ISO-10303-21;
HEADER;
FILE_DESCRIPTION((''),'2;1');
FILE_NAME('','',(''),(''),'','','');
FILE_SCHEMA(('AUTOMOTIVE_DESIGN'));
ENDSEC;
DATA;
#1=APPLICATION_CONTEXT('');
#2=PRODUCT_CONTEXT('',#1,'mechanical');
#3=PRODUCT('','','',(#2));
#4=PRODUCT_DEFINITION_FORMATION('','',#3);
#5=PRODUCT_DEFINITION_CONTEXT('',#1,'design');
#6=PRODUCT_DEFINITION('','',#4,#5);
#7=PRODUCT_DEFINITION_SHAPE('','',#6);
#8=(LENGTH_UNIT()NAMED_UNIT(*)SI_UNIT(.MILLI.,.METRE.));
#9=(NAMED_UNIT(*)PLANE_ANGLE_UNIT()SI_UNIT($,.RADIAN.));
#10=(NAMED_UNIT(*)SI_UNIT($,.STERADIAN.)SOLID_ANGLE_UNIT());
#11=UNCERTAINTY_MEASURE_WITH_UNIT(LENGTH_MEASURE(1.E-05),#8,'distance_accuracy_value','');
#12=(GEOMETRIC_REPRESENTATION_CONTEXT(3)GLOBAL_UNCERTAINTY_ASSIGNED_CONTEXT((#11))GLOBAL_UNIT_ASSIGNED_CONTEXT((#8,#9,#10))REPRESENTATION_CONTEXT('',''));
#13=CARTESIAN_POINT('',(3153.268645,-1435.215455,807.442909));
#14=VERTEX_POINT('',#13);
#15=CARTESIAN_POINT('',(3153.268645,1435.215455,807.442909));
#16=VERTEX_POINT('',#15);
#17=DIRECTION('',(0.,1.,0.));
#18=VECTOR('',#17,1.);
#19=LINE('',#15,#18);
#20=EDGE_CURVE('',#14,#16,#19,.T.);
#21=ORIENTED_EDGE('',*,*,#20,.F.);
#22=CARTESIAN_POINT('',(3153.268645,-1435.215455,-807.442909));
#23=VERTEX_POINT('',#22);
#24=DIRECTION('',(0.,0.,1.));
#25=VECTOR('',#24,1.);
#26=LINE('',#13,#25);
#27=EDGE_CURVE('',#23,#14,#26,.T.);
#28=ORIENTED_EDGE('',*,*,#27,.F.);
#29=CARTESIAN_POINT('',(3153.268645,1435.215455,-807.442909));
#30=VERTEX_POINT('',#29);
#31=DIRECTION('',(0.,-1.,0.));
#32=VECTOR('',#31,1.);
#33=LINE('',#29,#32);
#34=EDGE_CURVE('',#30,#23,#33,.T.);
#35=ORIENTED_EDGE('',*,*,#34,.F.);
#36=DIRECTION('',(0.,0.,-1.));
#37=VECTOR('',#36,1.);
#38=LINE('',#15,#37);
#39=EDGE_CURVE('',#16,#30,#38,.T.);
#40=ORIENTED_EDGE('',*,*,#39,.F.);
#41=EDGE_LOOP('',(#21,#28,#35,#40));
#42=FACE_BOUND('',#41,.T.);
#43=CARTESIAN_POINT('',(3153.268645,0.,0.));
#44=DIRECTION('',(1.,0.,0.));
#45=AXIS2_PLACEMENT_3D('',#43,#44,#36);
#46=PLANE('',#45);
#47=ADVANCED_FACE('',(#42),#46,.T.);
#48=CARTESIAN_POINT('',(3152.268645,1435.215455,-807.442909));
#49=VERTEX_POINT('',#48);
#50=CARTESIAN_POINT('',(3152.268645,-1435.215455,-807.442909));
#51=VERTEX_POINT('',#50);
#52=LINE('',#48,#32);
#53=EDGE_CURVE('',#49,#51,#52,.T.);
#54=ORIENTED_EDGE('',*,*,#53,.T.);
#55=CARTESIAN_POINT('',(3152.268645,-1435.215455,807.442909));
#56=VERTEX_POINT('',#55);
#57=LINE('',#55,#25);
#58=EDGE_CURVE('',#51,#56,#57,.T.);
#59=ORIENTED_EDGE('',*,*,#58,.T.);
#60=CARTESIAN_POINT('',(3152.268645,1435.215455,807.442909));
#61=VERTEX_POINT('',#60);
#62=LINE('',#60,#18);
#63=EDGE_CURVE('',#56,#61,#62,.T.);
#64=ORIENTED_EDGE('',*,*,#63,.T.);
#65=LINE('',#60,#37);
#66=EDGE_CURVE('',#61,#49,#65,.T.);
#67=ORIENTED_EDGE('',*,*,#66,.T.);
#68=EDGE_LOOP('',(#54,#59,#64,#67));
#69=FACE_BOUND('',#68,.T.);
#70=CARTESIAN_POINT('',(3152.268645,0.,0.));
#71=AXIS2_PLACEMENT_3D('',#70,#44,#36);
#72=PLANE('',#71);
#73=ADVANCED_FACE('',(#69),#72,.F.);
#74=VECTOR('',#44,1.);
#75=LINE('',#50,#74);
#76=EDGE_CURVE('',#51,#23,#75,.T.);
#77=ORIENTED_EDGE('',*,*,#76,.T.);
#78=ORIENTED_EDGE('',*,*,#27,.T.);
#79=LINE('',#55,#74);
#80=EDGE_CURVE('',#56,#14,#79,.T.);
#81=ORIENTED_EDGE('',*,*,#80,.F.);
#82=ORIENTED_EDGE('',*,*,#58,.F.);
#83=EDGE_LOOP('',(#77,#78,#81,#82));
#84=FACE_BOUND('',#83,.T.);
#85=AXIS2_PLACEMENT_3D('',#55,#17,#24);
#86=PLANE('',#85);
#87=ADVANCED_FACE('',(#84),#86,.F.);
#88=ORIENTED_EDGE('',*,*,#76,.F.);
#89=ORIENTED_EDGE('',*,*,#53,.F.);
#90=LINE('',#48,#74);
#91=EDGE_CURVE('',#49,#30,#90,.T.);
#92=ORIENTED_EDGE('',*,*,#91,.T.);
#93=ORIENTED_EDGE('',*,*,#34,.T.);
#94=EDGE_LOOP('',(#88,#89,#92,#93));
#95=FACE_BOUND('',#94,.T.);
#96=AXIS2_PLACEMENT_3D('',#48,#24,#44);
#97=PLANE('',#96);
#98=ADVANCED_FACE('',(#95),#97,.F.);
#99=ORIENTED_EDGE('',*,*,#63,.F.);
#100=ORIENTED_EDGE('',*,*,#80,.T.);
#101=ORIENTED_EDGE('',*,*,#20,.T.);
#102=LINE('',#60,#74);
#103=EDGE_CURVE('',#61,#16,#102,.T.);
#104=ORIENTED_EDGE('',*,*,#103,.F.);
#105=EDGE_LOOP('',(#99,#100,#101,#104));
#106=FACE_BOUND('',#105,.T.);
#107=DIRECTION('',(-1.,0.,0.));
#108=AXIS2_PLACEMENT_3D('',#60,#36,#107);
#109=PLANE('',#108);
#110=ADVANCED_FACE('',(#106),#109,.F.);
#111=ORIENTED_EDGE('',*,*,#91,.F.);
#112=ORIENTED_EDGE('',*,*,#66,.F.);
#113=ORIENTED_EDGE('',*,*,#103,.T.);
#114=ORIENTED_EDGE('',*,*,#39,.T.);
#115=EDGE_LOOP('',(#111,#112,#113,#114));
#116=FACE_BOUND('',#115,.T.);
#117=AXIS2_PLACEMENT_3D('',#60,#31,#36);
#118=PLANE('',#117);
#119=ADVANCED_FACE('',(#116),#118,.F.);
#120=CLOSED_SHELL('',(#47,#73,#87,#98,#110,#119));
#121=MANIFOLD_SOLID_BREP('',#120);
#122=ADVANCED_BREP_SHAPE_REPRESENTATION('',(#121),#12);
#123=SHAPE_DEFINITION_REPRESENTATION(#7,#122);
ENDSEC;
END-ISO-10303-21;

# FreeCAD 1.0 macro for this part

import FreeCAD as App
import Part
import Sketcher

V = App.Vector
Q = App.Units.Quantity

doc = App.newDocument("Part")
body = doc.addObject("PartDesign::Body", "Body")

sketch1 = body.newObject("Sketcher::SketchObject", "Sketch")
sketch1.AttachmentSupport = (doc.getObject("YZ_Plane"), [""])
sketch1.MapMode = "FlatFace"
sketch1.AttachmentOffset = App.Placement(V(0, 0, 3152.268645), App.Rotation())
sketch1.addGeometry([
    Part.LineSegment(V(1435.215455, 807.442909, 0), V(-1435.215456, 807.442909, 0)),
    Part.LineSegment(V(-1435.215456, 807.442909, 0), V(-1435.215456, -807.44291, 0)),
    Part.LineSegment(V(-1435.215456, -807.44291, 0), V(1435.215455, -807.44291, 0)),
    Part.LineSegment(V(1435.215455, -807.44291, 0), V(1435.215455, 807.442909, 0)),
], False)
sketch1.addConstraint([
    Sketcher.Constraint("Coincident", 0, 2, 1, 1),
    Sketcher.Constraint("Coincident", 1, 2, 2, 1),
    Sketcher.Constraint("Coincident", 2, 2, 3, 1),
    Sketcher.Constraint("Coincident", 3, 2, 0, 1),
    Sketcher.Constraint("Horizontal", 0),
    Sketcher.Constraint("Vertical", 1),
    Sketcher.Constraint("Horizontal", 2),
    Sketcher.Constraint("Vertical", 3),
    Sketcher.Constraint("Symmetric", 0, 2, 2, 2, -1, 1),
    Sketcher.Constraint("DistanceX", 0, 2, 0, 1, Q("2870.43091 mm")),
    Sketcher.Constraint("DistanceY", 1, 2, 1, 1, Q("1614.885819 mm")),
])
pad1 = body.newObject("PartDesign::Pad", "Pad")
pad1.Profile = sketch1
pad1.Length = 1

doc.recompute()
